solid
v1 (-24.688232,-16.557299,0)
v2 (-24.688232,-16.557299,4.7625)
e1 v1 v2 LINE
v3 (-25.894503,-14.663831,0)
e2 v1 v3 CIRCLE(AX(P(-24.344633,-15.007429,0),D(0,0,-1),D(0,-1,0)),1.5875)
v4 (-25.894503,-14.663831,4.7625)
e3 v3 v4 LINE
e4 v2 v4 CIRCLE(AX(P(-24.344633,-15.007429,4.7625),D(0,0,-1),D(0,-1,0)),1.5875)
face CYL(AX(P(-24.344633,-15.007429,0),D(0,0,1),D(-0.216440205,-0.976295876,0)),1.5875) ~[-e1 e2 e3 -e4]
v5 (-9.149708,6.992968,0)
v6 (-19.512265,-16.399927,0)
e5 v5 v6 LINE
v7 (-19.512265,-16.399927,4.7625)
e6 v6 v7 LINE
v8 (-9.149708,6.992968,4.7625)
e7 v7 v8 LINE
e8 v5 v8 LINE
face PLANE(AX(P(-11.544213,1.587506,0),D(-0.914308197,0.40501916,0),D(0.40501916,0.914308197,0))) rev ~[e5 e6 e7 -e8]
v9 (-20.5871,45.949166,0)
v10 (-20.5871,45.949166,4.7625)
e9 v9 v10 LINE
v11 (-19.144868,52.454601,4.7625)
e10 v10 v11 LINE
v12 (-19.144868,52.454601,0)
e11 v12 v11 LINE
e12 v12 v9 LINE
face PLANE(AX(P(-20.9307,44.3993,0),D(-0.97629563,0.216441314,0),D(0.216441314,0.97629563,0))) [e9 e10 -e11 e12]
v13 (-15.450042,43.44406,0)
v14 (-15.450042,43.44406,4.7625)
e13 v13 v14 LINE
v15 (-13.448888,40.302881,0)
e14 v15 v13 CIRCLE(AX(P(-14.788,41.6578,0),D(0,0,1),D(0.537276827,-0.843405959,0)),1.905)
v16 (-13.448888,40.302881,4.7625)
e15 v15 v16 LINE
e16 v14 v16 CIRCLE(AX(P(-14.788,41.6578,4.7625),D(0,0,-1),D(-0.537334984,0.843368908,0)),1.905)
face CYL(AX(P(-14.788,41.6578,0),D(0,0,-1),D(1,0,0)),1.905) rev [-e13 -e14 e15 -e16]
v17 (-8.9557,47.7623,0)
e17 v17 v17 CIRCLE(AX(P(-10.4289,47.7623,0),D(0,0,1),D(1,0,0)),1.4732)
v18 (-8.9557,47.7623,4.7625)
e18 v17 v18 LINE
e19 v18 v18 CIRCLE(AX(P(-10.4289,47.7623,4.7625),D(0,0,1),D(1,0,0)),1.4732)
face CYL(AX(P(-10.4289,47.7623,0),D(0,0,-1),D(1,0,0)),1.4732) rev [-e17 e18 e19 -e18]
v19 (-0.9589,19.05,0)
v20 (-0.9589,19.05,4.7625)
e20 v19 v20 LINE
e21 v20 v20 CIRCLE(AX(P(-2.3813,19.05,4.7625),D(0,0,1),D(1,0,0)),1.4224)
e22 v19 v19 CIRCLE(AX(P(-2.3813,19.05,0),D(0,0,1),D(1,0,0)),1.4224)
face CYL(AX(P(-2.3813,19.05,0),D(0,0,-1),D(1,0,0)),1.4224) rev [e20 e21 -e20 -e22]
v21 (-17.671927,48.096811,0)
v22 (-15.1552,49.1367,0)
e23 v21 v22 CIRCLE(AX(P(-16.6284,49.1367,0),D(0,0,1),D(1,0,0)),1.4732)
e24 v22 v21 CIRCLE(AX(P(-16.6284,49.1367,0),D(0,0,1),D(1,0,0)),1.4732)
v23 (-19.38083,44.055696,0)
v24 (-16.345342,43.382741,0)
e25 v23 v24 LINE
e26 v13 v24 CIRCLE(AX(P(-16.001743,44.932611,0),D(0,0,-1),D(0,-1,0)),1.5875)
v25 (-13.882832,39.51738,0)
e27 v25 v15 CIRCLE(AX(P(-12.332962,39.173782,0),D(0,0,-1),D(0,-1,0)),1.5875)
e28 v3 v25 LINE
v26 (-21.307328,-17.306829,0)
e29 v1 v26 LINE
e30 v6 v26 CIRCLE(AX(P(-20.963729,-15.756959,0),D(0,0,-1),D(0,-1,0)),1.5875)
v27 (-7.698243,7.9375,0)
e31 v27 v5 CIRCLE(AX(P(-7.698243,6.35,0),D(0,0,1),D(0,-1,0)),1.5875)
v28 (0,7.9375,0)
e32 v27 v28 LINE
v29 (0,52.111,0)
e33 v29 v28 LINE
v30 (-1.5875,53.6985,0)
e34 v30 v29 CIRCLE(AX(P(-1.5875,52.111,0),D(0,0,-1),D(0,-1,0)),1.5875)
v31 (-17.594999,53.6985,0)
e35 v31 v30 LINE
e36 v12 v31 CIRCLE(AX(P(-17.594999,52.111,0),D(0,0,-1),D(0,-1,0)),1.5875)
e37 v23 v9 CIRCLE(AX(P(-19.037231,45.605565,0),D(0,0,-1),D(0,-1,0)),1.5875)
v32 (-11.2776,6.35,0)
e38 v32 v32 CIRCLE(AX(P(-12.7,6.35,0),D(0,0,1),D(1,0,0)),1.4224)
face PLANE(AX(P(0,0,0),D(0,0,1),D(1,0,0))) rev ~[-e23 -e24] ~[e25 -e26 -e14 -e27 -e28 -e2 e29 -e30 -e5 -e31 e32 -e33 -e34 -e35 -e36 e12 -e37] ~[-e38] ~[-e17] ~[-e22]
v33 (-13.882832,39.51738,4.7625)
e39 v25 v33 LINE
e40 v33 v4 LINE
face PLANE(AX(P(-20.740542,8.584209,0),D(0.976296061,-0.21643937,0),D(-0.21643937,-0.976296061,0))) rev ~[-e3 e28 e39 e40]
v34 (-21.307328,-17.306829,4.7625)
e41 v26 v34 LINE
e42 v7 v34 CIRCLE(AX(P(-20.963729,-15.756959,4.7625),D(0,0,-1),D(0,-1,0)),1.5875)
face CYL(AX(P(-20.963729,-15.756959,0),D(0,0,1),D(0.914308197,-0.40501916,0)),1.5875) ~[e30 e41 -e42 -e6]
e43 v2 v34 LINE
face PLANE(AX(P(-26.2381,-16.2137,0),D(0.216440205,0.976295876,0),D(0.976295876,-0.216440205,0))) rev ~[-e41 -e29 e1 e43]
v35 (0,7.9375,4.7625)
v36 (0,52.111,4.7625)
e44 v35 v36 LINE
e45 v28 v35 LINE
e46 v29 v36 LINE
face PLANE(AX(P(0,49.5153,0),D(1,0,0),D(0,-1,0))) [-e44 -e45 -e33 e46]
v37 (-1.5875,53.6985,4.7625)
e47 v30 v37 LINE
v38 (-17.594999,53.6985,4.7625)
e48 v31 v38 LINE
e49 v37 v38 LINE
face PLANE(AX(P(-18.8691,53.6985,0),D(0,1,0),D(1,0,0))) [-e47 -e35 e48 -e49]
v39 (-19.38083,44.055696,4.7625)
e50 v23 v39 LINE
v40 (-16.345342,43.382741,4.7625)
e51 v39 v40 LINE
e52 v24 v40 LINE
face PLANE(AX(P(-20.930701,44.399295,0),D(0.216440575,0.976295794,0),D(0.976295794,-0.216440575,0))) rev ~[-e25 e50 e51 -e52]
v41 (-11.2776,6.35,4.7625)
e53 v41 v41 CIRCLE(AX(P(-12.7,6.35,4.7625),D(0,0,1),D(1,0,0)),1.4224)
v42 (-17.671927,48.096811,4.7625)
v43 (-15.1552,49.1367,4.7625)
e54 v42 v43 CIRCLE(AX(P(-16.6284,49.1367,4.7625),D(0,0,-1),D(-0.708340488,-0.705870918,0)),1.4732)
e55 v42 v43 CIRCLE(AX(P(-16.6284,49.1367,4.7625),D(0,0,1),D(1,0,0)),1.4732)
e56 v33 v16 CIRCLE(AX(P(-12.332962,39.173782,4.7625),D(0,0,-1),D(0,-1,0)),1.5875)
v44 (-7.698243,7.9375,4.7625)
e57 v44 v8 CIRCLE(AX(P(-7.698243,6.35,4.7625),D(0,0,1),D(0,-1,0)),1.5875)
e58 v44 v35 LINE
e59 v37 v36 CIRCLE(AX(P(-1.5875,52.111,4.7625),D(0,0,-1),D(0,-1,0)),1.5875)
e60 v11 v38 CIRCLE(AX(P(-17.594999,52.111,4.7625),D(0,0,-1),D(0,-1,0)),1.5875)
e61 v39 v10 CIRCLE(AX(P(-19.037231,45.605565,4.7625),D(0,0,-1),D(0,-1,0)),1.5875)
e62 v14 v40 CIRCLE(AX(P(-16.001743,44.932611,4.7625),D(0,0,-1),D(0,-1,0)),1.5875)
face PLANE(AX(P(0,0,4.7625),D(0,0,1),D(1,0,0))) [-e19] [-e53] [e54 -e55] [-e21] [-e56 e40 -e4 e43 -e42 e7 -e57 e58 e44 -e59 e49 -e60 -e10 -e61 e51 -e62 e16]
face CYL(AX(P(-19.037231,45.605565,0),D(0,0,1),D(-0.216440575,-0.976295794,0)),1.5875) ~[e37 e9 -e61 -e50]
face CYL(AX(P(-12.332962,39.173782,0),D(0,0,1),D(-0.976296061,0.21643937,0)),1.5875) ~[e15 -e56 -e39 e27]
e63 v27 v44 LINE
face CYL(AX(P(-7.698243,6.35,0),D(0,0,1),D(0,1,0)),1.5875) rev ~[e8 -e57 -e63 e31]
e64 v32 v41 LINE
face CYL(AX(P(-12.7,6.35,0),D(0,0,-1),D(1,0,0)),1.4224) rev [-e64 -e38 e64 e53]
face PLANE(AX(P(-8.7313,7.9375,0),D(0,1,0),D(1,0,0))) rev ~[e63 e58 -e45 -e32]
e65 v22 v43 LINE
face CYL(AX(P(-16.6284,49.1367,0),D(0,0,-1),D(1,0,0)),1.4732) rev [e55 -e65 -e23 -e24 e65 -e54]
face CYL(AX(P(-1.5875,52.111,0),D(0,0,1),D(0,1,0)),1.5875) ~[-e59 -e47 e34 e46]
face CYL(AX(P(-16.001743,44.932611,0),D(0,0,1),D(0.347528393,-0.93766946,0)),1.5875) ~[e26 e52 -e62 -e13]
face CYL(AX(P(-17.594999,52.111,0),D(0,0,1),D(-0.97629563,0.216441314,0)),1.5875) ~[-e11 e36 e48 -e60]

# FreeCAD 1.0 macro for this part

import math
import FreeCAD as App
import Part
import Sketcher

V = App.Vector
Q = App.Units.Quantity


def edges_at(feature, points):
    """Names of the edges that pass closest to the given points."""
    edges = feature.Shape.Edges
    near = lambda p: min(range(len(edges)), key=lambda i: edges[i].distToShape(Part.Vertex(*p))[0])
    return sorted({f"Edge{near(p) + 1}" for p in points})

doc = App.newDocument("Part")
body = doc.addObject("PartDesign::Body", "Body")

# Sketch on XY plane
sketch1 = doc.addObject("Sketcher::SketchObject", "Sketch")
body.addObject(sketch1)
sketch1.AttachmentSupport = (doc.XY_Plane, [""])
sketch1.MapMode = "FlatFace"
sketch1.addGeometry(Part.LineSegment(V(-20.9, 44.4, 0), V(-15.8, 43.3, 0)), False)
sketch1.addGeometry(Part.ArcOfCircle(Part.Circle(V(-14.8, 41.7, 0), V(0, 0, 1), 1.9), math.radians(-58), math.radians(123)), False)
sketch1.addGeometry(Part.LineSegment(V(-13.8, 40.1, 0), V(-26.2, -16.2, 0)), False)
sketch1.addGeometry(Part.LineSegment(V(-26.2, -16.2, 0), V(-20, -17.6, 0)), False)
sketch1.addGeometry(Part.LineSegment(V(-20, -17.6, 0), V(-8.7, 7.9, 0)), False)
sketch1.addGeometry(Part.LineSegment(V(-8.7, 7.9, 0), V(0, 7.9, 0)), False)
sketch1.addGeometry(Part.LineSegment(V(0, 7.9, 0), V(0, 53.7, 0)), False)
sketch1.addGeometry(Part.LineSegment(V(0, 53.7, 0), V(-18.9, 53.7, 0)), False)
sketch1.addGeometry(Part.LineSegment(V(-18.9, 53.7, 0), V(-20.9, 44.4, 0)), False)
sketch1.addGeometry(Part.Circle(V(-16.6, 49.1, 0), V(0, 0, 1), 1.5), False)
sketch1.addGeometry(Part.Circle(V(-10.4, 47.8, 0), V(0, 0, 1), 1.5), False)
sketch1.addGeometry(Part.Circle(V(-12.7, 6.3, 0), V(0, 0, 1), 1.4), False)
sketch1.addGeometry(Part.Circle(V(-2.4, 19.1, 0), V(0, 0, 1), 1.4), False)
sketch1.addConstraint(Sketcher.Constraint("Coincident", 0, 2, 1, 2))
sketch1.addConstraint(Sketcher.Constraint("Coincident", 1, 1, 2, 1))
sketch1.addConstraint(Sketcher.Constraint("Coincident", 2, 2, 3, 1))
sketch1.addConstraint(Sketcher.Constraint("Coincident", 3, 2, 4, 1))
sketch1.addConstraint(Sketcher.Constraint("Coincident", 4, 2, 5, 1))
sketch1.addConstraint(Sketcher.Constraint("Coincident", 5, 2, 6, 1))
sketch1.addConstraint(Sketcher.Constraint("Coincident", 6, 2, 7, 1))
sketch1.addConstraint(Sketcher.Constraint("Coincident", 7, 2, 8, 1))
sketch1.addConstraint(Sketcher.Constraint("Coincident", 8, 2, 0, 1))
sketch1.addConstraint(Sketcher.Constraint("Horizontal", 5))
sketch1.addConstraint(Sketcher.Constraint("Vertical", 6))
sketch1.addConstraint(Sketcher.Constraint("Horizontal", 7))
sketch1.addConstraint(Sketcher.Constraint("Equal", 9, 10))
sketch1.addConstraint(Sketcher.Constraint("Equal", 11, 12))
sketch1.addConstraint(Sketcher.Constraint("PointOnObject", 5, 2, -2))
sketch1.addConstraint(Sketcher.Constraint("Perpendicular", 0, 2))
sketch1.addConstraint(Sketcher.Constraint("Perpendicular", 2, 3))
sketch1.addConstraint(Sketcher.Constraint("Perpendicular", 3, 8))
sketch1.addConstraint(Sketcher.Constraint("Diameter", 9, Q("0.116 in")))
sketch1.addConstraint(Sketcher.Constraint("Diameter", 11, Q("0.112 in")))
sketch1.addConstraint(Sketcher.Constraint("Radius", 1, Q("0.075 in")))
sketch1.addConstraint(Sketcher.Constraint("DistanceX", 11, 3, -1, 1, Q("0.5 in")))
sketch1.addConstraint(Sketcher.Constraint("Angle", 0, Q("-12.5 deg")))
sketch1.addConstraint(Sketcher.Constraint("DistanceY", 11, 3, 12, 3, Q("0.5 in")))
sketch1.addConstraint(Sketcher.Constraint("Distance", 3, Q("0.25 in")))
sketch1.addConstraint(Sketcher.Constraint("DistanceX", 5, 1, 5, 2, Q("0.343752 in")))
sketch1.addConstraint(Sketcher.Constraint("DistanceY", -1, 1, 11, 3, Q("0.25 in")))
sketch1.addConstraint(Sketcher.Constraint("DistanceX", 4, 2, 12, 3, Q("0.25 in")))
sketch1.addConstraint(Sketcher.Constraint("Distance", 8, Q("0.375 in")))
sketch1.addConstraint(Sketcher.Constraint("DistanceY", -1, 1, 4, 2, Q("0.3125 in")))
sketch1.addConstraint(Sketcher.Constraint("DistanceX", 2, 2, -1, 1, Q("1.033 in")))
sketch1.addConstraint(Sketcher.Constraint("DistanceY", -1, 1, 8, 2, Q("1.748 in")))
sketch1.addConstraint(Sketcher.Constraint("DistanceX", 7, 2, 7, 1, 18.869))
sketch1.addConstraint(Sketcher.Constraint("DistanceX", 1, 3, -1, 1, Q("0.5822 in")))
sketch1.addConstraint(Sketcher.Constraint("DistanceY", -1, 1, 10, 3, Q("1.8804 in")))
sketch1.addConstraint(Sketcher.Constraint("DistanceX", 0, 2, -1, 1, Q("0.6225 in")))
sketch1.addConstraint(Sketcher.Constraint("DistanceX", 1, 1, -1, 1, Q("0.5419 in")))
sketch1.addConstraint(Sketcher.Constraint("DistanceY", 10, 3, 9, 3, Q("0.0541 in")))
sketch1.addConstraint(Sketcher.Constraint("DistanceX", 9, 3, 12, 3, Q("0.5609 in")))
sketch1.addConstraint(Sketcher.Constraint("DistanceX", 7, 2, 10, 3, Q("0.3323 in")))
pad1 = doc.addObject("PartDesign::Pad", "Pad")
body.addObject(pad1)
pad1.Profile = sketch1
pad1.Length = Q("0.1875 in")
doc.recompute()

fillet = doc.addObject("PartDesign::Fillet", "Fillet")
body.addObject(fillet)
fillet.Base = (pad1, edges_at(pad1, [(-26.238, -16.214, 2.381), (-20.039, -17.588, 2.381), (-8.731, 7.938, 2.381)]))
fillet.Radius = Q("0.0625 in")
doc.recompute()

fillet2 = doc.addObject("PartDesign::Fillet", "Fillet001")
body.addObject(fillet2)
fillet2.Base = (fillet, edges_at(fillet, [
    (-18.869, 53.699, 2.381),
    (0, 53.699, 2.381),
    (-20.931, 44.399, 2.381),
    (-15.812, 43.264, 2.381),
    (-13.764, 40.051, 2.381),
]))
fillet2.Radius = Q("0.0625 in")

doc.recompute()
